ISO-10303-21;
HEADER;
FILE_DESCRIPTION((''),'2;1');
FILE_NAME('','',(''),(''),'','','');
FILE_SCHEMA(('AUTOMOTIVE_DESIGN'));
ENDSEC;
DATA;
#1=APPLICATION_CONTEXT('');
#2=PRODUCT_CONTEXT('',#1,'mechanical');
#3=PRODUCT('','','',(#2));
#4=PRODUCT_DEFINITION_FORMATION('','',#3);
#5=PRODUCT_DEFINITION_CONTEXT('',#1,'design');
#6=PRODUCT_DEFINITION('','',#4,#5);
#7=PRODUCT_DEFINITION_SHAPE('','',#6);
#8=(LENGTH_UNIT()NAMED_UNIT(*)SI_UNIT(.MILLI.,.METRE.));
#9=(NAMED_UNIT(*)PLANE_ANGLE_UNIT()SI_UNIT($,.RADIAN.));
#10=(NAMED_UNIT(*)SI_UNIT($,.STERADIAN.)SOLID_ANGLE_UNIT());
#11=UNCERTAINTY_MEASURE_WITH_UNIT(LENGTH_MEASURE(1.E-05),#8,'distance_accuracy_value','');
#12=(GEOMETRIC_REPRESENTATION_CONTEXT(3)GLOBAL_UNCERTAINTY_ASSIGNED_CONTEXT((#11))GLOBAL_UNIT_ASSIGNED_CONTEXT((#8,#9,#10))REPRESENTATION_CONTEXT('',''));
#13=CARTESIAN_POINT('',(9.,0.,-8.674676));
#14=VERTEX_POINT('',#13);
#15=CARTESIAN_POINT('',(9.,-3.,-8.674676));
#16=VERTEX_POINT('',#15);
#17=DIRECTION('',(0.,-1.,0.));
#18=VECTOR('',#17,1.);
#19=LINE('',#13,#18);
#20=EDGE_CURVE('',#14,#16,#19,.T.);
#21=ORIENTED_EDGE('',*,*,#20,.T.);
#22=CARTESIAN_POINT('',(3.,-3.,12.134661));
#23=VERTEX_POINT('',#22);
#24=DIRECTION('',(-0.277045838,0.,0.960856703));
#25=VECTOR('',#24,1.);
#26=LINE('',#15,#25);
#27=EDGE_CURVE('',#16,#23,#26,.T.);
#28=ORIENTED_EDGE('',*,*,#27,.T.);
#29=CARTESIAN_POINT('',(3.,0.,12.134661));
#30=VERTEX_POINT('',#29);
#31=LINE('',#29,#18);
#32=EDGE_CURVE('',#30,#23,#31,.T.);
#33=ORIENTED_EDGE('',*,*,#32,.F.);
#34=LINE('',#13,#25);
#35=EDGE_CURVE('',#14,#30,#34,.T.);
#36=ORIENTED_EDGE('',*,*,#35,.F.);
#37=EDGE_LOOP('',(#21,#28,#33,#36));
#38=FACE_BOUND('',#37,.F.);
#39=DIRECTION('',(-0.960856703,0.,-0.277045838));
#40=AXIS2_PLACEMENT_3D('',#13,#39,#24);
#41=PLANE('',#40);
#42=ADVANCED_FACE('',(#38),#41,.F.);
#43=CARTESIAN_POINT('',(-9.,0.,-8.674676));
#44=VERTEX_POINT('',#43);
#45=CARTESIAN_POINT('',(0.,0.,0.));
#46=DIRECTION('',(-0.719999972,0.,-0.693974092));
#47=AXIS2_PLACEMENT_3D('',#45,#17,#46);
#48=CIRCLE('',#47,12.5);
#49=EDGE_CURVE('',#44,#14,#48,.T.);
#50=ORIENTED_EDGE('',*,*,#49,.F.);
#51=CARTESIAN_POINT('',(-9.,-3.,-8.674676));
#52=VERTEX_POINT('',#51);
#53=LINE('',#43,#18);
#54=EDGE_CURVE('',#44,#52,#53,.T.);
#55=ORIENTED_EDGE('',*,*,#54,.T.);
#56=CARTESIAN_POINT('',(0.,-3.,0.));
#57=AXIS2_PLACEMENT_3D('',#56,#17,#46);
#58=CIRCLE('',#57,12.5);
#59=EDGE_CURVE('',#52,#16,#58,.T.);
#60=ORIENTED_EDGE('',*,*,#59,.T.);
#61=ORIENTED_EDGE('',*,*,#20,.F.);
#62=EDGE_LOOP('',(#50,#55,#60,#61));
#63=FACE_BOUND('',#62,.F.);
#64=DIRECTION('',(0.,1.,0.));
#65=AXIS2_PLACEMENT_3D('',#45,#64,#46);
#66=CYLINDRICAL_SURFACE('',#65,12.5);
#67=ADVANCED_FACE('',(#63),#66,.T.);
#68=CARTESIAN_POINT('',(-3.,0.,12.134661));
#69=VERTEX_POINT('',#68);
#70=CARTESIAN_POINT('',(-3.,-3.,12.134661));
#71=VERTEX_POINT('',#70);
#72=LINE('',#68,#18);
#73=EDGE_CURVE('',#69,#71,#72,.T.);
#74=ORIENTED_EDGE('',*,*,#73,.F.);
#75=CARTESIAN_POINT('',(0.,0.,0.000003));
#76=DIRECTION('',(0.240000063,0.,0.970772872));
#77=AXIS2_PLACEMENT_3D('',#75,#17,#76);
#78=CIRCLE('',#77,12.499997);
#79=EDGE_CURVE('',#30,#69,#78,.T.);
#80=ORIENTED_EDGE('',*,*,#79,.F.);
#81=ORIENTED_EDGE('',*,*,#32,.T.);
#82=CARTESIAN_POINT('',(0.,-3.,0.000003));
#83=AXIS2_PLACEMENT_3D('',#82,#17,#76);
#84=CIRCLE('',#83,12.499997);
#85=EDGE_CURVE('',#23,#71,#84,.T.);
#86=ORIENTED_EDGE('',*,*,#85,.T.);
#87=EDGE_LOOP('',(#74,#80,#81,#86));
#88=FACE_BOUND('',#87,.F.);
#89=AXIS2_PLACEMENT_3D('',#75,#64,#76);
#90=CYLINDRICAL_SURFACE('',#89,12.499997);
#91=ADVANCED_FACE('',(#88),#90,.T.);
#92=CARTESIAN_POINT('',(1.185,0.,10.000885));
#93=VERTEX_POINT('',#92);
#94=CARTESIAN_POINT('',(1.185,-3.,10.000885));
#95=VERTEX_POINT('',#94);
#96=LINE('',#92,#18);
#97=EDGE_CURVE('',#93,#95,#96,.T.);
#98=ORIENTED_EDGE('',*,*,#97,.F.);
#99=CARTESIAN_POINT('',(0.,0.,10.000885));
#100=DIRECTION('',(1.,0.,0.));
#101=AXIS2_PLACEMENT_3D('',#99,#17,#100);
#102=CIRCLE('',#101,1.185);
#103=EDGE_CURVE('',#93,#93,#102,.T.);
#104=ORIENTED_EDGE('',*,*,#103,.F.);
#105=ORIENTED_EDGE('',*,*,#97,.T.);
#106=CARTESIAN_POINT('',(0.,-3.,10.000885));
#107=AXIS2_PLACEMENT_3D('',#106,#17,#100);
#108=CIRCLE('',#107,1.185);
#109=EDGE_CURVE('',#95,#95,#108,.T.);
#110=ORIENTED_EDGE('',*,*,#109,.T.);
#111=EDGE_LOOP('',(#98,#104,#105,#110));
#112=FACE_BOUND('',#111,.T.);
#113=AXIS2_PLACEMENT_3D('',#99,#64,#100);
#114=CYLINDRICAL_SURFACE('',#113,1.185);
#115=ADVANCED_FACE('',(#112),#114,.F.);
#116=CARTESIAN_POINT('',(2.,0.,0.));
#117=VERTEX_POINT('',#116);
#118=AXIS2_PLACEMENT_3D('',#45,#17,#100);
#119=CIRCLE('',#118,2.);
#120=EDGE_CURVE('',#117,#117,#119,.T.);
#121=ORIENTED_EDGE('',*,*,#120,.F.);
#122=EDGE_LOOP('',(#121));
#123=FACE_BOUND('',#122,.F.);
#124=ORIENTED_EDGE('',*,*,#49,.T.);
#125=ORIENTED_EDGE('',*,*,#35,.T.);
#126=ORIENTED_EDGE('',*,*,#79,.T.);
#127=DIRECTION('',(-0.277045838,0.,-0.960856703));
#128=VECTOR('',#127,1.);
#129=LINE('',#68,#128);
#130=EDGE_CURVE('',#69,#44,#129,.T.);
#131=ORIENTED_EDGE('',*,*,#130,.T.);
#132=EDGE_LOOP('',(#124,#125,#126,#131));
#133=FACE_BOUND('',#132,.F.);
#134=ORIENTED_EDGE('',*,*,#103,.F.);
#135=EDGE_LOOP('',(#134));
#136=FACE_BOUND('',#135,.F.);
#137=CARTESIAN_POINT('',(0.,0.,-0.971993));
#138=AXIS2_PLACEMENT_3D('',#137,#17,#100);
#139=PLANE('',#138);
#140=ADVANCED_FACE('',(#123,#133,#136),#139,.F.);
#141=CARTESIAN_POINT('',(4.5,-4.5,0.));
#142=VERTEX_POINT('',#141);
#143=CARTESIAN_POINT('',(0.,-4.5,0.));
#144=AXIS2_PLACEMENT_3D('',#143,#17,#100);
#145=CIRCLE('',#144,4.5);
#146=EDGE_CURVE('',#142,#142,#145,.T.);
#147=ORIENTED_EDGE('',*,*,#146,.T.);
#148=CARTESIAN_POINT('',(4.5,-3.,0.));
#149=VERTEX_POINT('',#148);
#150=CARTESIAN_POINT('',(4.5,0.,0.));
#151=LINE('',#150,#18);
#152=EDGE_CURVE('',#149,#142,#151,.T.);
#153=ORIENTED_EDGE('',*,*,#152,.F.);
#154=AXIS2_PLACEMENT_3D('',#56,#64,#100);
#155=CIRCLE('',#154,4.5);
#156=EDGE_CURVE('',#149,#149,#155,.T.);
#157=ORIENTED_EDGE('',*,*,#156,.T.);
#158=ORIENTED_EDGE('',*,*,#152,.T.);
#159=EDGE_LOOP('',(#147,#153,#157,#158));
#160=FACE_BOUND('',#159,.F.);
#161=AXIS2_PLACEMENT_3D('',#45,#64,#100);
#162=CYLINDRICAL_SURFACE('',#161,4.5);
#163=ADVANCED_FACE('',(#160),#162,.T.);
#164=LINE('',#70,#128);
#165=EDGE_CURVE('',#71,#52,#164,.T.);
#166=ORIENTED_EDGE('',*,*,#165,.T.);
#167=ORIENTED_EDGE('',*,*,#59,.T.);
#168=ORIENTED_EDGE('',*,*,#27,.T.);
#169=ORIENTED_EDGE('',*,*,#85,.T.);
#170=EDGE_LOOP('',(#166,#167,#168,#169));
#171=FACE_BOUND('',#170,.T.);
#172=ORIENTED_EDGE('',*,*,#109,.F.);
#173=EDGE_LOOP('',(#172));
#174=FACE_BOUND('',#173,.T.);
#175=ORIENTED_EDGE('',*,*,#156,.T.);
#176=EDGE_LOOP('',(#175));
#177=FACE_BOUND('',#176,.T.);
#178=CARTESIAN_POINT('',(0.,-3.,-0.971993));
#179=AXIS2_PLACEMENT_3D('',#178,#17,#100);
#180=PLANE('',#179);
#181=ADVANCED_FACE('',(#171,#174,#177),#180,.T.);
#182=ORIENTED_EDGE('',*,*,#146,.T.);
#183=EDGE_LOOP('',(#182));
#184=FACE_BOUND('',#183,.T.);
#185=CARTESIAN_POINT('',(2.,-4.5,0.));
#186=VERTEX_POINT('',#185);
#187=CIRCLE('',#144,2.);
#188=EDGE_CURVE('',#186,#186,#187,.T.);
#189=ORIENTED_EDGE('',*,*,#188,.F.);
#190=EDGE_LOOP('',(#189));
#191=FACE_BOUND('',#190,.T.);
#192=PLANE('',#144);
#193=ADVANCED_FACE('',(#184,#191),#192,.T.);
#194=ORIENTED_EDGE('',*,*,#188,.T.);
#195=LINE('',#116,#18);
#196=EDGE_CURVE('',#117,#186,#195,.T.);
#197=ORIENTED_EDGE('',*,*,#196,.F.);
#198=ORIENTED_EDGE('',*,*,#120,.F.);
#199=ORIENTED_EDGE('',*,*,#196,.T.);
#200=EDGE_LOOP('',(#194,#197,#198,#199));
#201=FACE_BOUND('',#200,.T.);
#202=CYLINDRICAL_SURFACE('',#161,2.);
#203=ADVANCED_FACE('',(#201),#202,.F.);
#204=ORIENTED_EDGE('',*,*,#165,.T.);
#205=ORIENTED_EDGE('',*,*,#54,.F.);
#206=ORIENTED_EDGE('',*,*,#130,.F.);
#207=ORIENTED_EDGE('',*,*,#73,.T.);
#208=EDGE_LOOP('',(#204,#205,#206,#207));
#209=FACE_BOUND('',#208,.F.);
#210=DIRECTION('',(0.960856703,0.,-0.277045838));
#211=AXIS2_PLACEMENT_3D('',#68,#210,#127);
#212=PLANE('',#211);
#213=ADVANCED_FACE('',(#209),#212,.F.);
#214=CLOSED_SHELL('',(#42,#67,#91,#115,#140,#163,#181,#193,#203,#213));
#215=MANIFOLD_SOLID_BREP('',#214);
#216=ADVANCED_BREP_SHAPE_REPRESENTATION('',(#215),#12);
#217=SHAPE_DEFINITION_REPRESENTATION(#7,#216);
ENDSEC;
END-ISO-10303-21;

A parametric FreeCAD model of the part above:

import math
import FreeCAD as App
import Part
import Sketcher
Q = App.Units.Quantity

doc = App.newDocument("Part")
body = doc.addObject("PartDesign::Body", "Body")

# Sketch on XZ plane
sketch1 = body.newObject("Sketcher::SketchObject", "Sketch")
sketch1.AttachmentSupport = (doc.getObject("XZ_Plane"), [""])
sketch1.MapMode = "FlatFace"
sketch1.addGeometry(Part.LineSegment(App.Vector(9, -8.7, 0), App.Vector(3, 12.1, 0)), False)
sketch1.addGeometry(Part.ArcOfCircle(Part.Circle(App.Vector(0, 0, 0), App.Vector(0, 0, 1), 12.5), math.radians(76), math.radians(104)), False)
sketch1.addGeometry(Part.LineSegment(App.Vector(-3, 12.1, 0), App.Vector(-9, -8.7, 0)), False)
sketch1.addGeometry(Part.ArcOfCircle(Part.Circle(App.Vector(0, 0, 0), App.Vector(0, 0, 1), 12.5), math.radians(-136), math.radians(-44)), False)
sketch1.addGeometry(Part.Circle(App.Vector(0, 0, 0), App.Vector(0, 0, 1), 2), False)
sketch1.addGeometry(Part.Circle(App.Vector(0, 10, 0), App.Vector(0, 0, 1), 1.2), False)
sketch1.addConstraint(Sketcher.Constraint("Coincident", 0, 2, 1, 1))
sketch1.addConstraint(Sketcher.Constraint("Coincident", 1, 2, 2, 1))
sketch1.addConstraint(Sketcher.Constraint("Coincident", 2, 2, 3, 1))
sketch1.addConstraint(Sketcher.Constraint("Coincident", 3, 2, 0, 1))
sketch1.addConstraint(Sketcher.Constraint("Coincident", 1, 3, -1, 1))
sketch1.addConstraint(Sketcher.Constraint("Coincident", 3, 3, -1, 1))
sketch1.addConstraint(Sketcher.Constraint("Coincident", 4, 3, -1, 1))
sketch1.addConstraint(Sketcher.Constraint("PointOnObject", 5, 3, -2))
sketch1.addConstraint(Sketcher.Constraint("Horizontal", 0, 2, 1, 2))
sketch1.addConstraint(Sketcher.Constraint("Horizontal", 2, 2, 3, 2))
sketch1.addConstraint(Sketcher.Constraint("Diameter", 4, Q("4 mm")))
sketch1.addConstraint(Sketcher.Constraint("Radius", 3, Q("12.5 mm")))
sketch1.addConstraint(Sketcher.Constraint("Diameter", 5, Q("2.37 mm")))
sketch1.addConstraint(Sketcher.Constraint("DistanceX", -1, 1, 0, 2, Q("3 mm")))
sketch1.addConstraint(Sketcher.Constraint("DistanceX", 2, 2, -1, 1, Q("9 mm")))
sketch1.addConstraint(Sketcher.Constraint("Radius", 1, Q("12.499997 mm")))
sketch1.addConstraint(Sketcher.Constraint("DistanceY", 1, 3, 5, 3, Q("10.000882 mm")))
pad1 = body.newObject("PartDesign::Pad", "Pad")
pad1.Profile = sketch1
pad1.Length = 3

# Sketch on XZ plane
sketch2 = body.newObject("Sketcher::SketchObject", "Sketch001")
sketch2.AttachmentSupport = (doc.getObject("XZ_Plane"), [""])
sketch2.MapMode = "FlatFace"
sketch2.addGeometry(Part.Circle(App.Vector(0, 0, 0), App.Vector(0, 0, 1), 4.5), False)
sketch2.addGeometry(Part.Circle(App.Vector(0, 0, 0), App.Vector(0, 0, 1), 2), False)
sketch2.addConstraint(Sketcher.Constraint("Coincident", 0, 3, -1, 1))
sketch2.addConstraint(Sketcher.Constraint("Coincident", 1, 3, -1, 1))
sketch2.addConstraint(Sketcher.Constraint("Diameter", 0, Q("9 mm")))
sketch2.addConstraint(Sketcher.Constraint("Diameter", 1, Q("4 mm")))
pad2 = body.newObject("PartDesign::Pad", "Pad001")
pad2.Profile = sketch2
pad2.Length = 4.5

doc.recompute()
